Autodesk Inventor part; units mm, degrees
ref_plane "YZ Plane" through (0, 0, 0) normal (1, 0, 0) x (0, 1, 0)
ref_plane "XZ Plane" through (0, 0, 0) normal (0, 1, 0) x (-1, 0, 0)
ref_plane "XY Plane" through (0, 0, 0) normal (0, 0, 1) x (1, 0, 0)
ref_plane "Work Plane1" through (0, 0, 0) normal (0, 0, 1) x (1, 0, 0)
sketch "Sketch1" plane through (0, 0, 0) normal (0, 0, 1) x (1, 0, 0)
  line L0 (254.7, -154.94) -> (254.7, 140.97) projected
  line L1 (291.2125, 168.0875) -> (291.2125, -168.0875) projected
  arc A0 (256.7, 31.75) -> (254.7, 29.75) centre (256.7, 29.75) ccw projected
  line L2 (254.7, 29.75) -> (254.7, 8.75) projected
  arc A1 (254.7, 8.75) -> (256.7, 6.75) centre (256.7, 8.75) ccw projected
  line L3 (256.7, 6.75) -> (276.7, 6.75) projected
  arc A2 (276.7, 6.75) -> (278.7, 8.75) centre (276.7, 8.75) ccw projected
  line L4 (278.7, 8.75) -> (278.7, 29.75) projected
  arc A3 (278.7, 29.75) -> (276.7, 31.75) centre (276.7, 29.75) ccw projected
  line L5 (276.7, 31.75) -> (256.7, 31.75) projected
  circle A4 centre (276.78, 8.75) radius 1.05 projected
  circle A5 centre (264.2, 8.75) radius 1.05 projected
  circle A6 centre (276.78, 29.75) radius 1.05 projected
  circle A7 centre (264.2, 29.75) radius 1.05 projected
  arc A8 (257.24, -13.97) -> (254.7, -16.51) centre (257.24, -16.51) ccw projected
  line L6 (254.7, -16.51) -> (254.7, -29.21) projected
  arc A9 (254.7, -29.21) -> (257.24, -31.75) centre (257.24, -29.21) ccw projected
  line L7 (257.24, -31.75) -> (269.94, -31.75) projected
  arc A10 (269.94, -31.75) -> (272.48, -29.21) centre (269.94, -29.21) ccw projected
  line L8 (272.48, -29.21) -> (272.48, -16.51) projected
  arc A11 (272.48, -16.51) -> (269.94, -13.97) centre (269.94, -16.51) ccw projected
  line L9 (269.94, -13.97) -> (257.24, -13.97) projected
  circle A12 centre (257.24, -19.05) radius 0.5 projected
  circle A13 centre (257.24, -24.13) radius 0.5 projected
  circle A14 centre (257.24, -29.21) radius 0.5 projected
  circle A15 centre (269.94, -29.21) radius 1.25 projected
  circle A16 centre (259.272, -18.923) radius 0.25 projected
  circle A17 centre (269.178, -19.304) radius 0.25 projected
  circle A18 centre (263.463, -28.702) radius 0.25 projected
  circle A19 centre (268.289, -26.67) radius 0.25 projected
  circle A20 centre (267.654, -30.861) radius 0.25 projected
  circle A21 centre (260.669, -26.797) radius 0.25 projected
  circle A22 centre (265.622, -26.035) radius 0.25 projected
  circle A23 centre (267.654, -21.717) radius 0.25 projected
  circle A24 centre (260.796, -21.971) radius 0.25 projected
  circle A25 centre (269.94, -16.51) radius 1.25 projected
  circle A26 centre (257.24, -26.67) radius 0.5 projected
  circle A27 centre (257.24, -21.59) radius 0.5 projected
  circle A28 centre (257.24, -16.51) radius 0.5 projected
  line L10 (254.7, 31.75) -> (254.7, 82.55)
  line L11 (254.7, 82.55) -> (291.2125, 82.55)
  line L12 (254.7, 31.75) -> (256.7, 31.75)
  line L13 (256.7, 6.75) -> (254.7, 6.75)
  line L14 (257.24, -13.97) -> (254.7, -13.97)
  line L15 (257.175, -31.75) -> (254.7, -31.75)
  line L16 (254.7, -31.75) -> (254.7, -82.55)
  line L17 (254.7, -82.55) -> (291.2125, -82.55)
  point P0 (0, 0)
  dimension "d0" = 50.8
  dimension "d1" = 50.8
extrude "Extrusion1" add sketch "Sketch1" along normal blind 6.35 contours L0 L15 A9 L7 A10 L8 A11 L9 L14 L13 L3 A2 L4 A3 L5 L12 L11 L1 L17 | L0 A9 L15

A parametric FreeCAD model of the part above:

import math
import FreeCAD as App
import Part
import Sketcher

V = App.Vector
Q = App.Units.Quantity

doc = App.newDocument("Part")
body = doc.addObject("PartDesign::Body", "Body")

# Sketch on XY plane
sketch1 = body.newObject("Sketcher::SketchObject", "Sketch")
sketch1.AttachmentSupport = (doc.getObject("XY_Plane"), [""])
sketch1.MapMode = "FlatFace"
sketch1.addGeometry([
    Part.LineSegment(V(254.7, -82.5, 0), V(291.2, -82.5, 0)),  # 0
    Part.LineSegment(V(291.2, -82.5, 0), V(291.2, 82.5, 0)),  # 1
    Part.LineSegment(V(291.2, 82.5, 0), V(254.7, 82.5, 0)),  # 2
    Part.LineSegment(V(254.7, 82.5, 0), V(254.7, 31.8, 0)),  # 3
    Part.LineSegment(V(254.7, 31.8, 0), V(276.7, 31.8, 0)),  # 4
    Part.ArcOfCircle(Part.Circle(V(276.7, 29.8, 0), V(0, 0, 1), 2), math.radians(0), math.radians(90)),  # 5
    Part.LineSegment(V(278.7, 29.8, 0), V(278.7, 8.8, 0)),  # 6
    Part.ArcOfCircle(Part.Circle(V(276.7, 8.8, 0), V(0, 0, 1), 2), math.radians(-90), math.radians(0)),  # 7
    Part.LineSegment(V(276.7, 6.8, 0), V(254.7, 6.8, 0)),  # 8
    Part.LineSegment(V(254.7, 6.8, 0), V(254.7, -14, 0)),  # 9
    Part.LineSegment(V(254.7, -14, 0), V(269.9, -14, 0)),  # 10
    Part.ArcOfCircle(Part.Circle(V(269.9, -16.5, 0), V(0, 0, 1), 2.5), math.radians(0), math.radians(90)),  # 11
    Part.LineSegment(V(272.5, -16.5, 0), V(272.5, -29.2, 0)),  # 12
    Part.ArcOfCircle(Part.Circle(V(269.9, -29.2, 0), V(0, 0, 1), 2.5), math.radians(-90), math.radians(0)),  # 13
    Part.LineSegment(V(269.9, -31.8, 0), V(257.2, -31.8, 0)),  # 14
    Part.ArcOfCircle(Part.Circle(V(257.2, -29.2, 0), V(0, 0, 1), 2.5), math.radians(180), math.radians(270)),  # 15
    Part.LineSegment(V(254.7, -29.2, 0), V(254.7, -82.5, 0)),  # 16
], False)
sketch1.addConstraint([
    Sketcher.Constraint("Coincident", 0, 2, 1, 1),
    Sketcher.Constraint("Coincident", 1, 2, 2, 1),
    Sketcher.Constraint("Coincident", 2, 2, 3, 1),
    Sketcher.Constraint("Coincident", 3, 2, 4, 1),
    Sketcher.Constraint("Tangent", 4, 2, 5, 2),
    Sketcher.Constraint("Tangent", 5, 1, 6, 1),
    Sketcher.Constraint("Tangent", 6, 2, 7, 2),
    Sketcher.Constraint("Tangent", 7, 1, 8, 1),
    Sketcher.Constraint("Coincident", 8, 2, 9, 1),
    Sketcher.Constraint("Coincident", 9, 2, 10, 1),
    Sketcher.Constraint("Tangent", 10, 2, 11, 2),
    Sketcher.Constraint("Tangent", 11, 1, 12, 1),
    Sketcher.Constraint("Tangent", 12, 2, 13, 2),
    Sketcher.Constraint("Tangent", 13, 1, 14, 1),
    Sketcher.Constraint("Tangent", 14, 2, 15, 2),
    Sketcher.Constraint("Tangent", 15, 1, 16, 1),
    Sketcher.Constraint("Coincident", 16, 2, 0, 1),
    Sketcher.Constraint("Horizontal", 0),
    Sketcher.Constraint("Vertical", 1),
    Sketcher.Constraint("Horizontal", 2),
    Sketcher.Constraint("Vertical", 3),
    Sketcher.Constraint("Horizontal", 4),
    Sketcher.Constraint("Vertical", 6),
    Sketcher.Constraint("Horizontal", 8),
    Sketcher.Constraint("Vertical", 9),
    Sketcher.Constraint("Horizontal", 10),
    Sketcher.Constraint("Vertical", 12),
    Sketcher.Constraint("Horizontal", 14),
    Sketcher.Constraint("Vertical", 16),
    Sketcher.Constraint("Equal", 5, 7),
    Sketcher.Constraint("Equal", 11, 13),
    Sketcher.Constraint("Equal", 13, 15),
    Sketcher.Constraint("Symmetric", 2, 2, 16, 2, -1),
    Sketcher.Constraint("Vertical", 3, 2, 8, 2),
    Sketcher.Constraint("Equal", 14, 12),
    Sketcher.Constraint("DistanceY", 3, 2, 3, 1, Q("2 in")),
    Sketcher.Constraint("DistanceY", 16, 2, 14, 2, Q("2 in")),
    Sketcher.Constraint("Radius", 11, Q("0.1 in")),
    Sketcher.Constraint("DistanceX", 10, 1, 10, 2, Q("0.6 in")),
    Sketcher.Constraint("DistanceY", 1, 1, 1, 2, Q("6.5 in")),
    Sketcher.Constraint("DistanceX", 0, 1, 0, 2, Q("1.4375 in")),
    Sketcher.Constraint("Radius", 5, Q("2 mm")),
    Sketcher.Constraint("DistanceX", 4, 1, 4, 2, Q("22 mm")),
    Sketcher.Constraint("DistanceY", 6, 2, 6, 1, Q("21 mm")),
    Sketcher.Constraint("DistanceX", -1, 1, 5, 3, Q("10.8937 in")),
])
pad1 = body.newObject("PartDesign::Pad", "Pad")
pad1.Profile = sketch1
pad1.Length = Q("0.25 in")

doc.recompute()
